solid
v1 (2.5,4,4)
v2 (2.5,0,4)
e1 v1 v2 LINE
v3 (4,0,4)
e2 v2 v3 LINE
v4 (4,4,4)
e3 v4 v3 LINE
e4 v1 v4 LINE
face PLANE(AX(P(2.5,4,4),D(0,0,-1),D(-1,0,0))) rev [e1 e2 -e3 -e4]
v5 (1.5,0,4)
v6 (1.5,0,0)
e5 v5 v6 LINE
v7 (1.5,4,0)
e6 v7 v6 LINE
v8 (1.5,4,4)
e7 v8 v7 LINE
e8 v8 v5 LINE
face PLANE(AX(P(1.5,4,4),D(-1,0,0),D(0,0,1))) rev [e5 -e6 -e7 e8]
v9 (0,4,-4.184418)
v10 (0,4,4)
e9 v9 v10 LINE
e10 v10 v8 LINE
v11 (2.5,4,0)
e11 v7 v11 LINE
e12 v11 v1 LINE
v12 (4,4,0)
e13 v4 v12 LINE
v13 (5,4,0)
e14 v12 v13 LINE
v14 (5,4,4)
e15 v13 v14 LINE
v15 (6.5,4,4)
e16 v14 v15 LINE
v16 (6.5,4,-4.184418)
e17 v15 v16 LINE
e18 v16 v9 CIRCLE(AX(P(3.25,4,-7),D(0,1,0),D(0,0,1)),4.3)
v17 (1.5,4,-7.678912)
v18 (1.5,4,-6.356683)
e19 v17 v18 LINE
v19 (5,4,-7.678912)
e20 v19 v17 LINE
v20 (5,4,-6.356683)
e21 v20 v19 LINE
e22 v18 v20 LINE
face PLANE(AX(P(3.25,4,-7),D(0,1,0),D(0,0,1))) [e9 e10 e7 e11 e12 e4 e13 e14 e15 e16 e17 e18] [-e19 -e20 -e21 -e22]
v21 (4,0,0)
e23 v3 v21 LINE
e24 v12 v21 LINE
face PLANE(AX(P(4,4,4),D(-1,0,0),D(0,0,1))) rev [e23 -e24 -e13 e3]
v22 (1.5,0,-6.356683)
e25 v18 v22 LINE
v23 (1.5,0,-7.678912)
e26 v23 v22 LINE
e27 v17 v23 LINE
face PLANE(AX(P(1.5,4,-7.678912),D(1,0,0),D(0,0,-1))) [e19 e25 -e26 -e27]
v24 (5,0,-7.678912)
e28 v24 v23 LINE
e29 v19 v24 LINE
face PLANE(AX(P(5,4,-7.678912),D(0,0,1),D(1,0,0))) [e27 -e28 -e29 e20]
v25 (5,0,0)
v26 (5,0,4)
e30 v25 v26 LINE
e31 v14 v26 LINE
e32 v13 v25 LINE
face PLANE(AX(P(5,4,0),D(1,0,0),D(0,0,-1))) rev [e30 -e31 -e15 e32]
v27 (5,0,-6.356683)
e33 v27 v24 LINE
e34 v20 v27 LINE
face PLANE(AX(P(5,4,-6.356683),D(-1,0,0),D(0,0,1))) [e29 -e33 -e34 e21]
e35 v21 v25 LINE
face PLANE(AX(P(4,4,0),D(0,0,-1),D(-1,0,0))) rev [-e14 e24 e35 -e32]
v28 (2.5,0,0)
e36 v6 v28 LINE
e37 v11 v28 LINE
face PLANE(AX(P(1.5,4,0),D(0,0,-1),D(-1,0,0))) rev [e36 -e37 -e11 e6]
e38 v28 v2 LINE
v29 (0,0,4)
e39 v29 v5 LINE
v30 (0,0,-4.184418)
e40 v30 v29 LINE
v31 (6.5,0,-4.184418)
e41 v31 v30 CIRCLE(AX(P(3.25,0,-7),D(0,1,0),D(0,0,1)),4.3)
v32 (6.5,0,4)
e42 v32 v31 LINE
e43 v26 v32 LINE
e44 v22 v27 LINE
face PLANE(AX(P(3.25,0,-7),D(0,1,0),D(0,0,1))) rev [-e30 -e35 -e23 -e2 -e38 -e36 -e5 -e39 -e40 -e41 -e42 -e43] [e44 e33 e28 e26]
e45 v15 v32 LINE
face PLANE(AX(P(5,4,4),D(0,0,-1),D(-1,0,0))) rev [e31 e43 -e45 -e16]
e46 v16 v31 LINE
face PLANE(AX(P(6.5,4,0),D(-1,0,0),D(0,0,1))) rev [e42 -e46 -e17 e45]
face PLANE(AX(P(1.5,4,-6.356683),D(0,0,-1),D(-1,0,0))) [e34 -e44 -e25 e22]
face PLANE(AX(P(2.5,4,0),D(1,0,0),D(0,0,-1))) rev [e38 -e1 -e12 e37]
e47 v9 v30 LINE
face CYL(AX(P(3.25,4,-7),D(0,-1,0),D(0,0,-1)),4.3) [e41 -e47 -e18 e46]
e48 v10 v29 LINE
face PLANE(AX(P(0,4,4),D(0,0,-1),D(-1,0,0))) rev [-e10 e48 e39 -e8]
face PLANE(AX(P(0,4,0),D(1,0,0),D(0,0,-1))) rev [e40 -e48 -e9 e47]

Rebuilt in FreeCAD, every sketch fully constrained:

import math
import FreeCAD as App
import Part
import Sketcher

V = App.Vector
Q = App.Units.Quantity

doc = App.newDocument("Part")
body = doc.addObject("PartDesign::Body", "Body")

# Sketch on XZ plane
sketch1 = body.newObject("Sketcher::SketchObject", "Sketch")
sketch1.AttachmentSupport = (doc.getObject("XZ_Plane"), [""])
sketch1.MapMode = "FlatFace"
sketch1.addGeometry(Part.LineSegment(V(0, 4, 0), V(1.5, 4, 0)), False)
sketch1.addGeometry(Part.LineSegment(V(1.5, 4, 0), V(1.5, 0, 0)), False)
sketch1.addGeometry(Part.LineSegment(V(1.5, 0, 0), V(2.5, 0, 0)), False)
sketch1.addGeometry(Part.LineSegment(V(2.5, 0, 0), V(2.5, 4, 0)), False)
sketch1.addGeometry(Part.LineSegment(V(2.5, 4, 0), V(4, 4, 0)), False)
sketch1.addGeometry(Part.LineSegment(V(4, 4, 0), V(4, 0, 0)), False)
sketch1.addGeometry(Part.LineSegment(V(4, 0, 0), V(5, 0, 0)), False)
sketch1.addGeometry(Part.LineSegment(V(5, 0, 0), V(5, 4, 0)), False)
sketch1.addGeometry(Part.LineSegment(V(5, 4, 0), V(6.5, 4, 0)), False)
sketch1.addGeometry(Part.LineSegment(V(6.5, 4, 0), V(6.5, -4.184418, 0)), False)
sketch1.addGeometry(Part.ArcOfCircle(Part.Circle(V(3.25, -7, 0), V(0, 0, 1), 4.3), math.radians(139.096542), math.radians(400.903458)), False)
sketch1.addGeometry(Part.LineSegment(V(0, -4.184418, 0), V(0, 4, 0)), False)
sketch1.addGeometry(Part.LineSegment(V(5, -6.356683, 0), V(1.5, -6.356683, 0)), False)
sketch1.addGeometry(Part.LineSegment(V(1.5, -6.356683, 0), V(1.5, -7.678912, 0)), False)
sketch1.addGeometry(Part.LineSegment(V(1.5, -7.678912, 0), V(5, -7.678912, 0)), False)
sketch1.addGeometry(Part.LineSegment(V(5, -7.678912, 0), V(5, -6.356683, 0)), False)
sketch1.addConstraint(Sketcher.Constraint("Coincident", 0, 2, 1, 1))
sketch1.addConstraint(Sketcher.Constraint("Coincident", 1, 2, 2, 1))
sketch1.addConstraint(Sketcher.Constraint("Coincident", 2, 2, 3, 1))
sketch1.addConstraint(Sketcher.Constraint("Coincident", 3, 2, 4, 1))
sketch1.addConstraint(Sketcher.Constraint("Coincident", 4, 2, 5, 1))
sketch1.addConstraint(Sketcher.Constraint("Coincident", 5, 2, 6, 1))
sketch1.addConstraint(Sketcher.Constraint("Coincident", 6, 2, 7, 1))
sketch1.addConstraint(Sketcher.Constraint("Coincident", 7, 2, 8, 1))
sketch1.addConstraint(Sketcher.Constraint("Coincident", 8, 2, 9, 1))
sketch1.addConstraint(Sketcher.Constraint("Coincident", 9, 2, 10, 2))
sketch1.addConstraint(Sketcher.Constraint("Coincident", 10, 1, 11, 1))
sketch1.addConstraint(Sketcher.Constraint("Coincident", 11, 2, 0, 1))
sketch1.addConstraint(Sketcher.Constraint("Coincident", 12, 2, 13, 1))
sketch1.addConstraint(Sketcher.Constraint("Coincident", 13, 2, 14, 1))
sketch1.addConstraint(Sketcher.Constraint("Coincident", 14, 2, 15, 1))
sketch1.addConstraint(Sketcher.Constraint("Coincident", 15, 2, 12, 1))
sketch1.addConstraint(Sketcher.Constraint("Horizontal", 0))
sketch1.addConstraint(Sketcher.Constraint("Vertical", 1))
sketch1.addConstraint(Sketcher.Constraint("Horizontal", 2))
sketch1.addConstraint(Sketcher.Constraint("Vertical", 3))
sketch1.addConstraint(Sketcher.Constraint("Horizontal", 4))
sketch1.addConstraint(Sketcher.Constraint("Vertical", 5))
sketch1.addConstraint(Sketcher.Constraint("Horizontal", 6))
sketch1.addConstraint(Sketcher.Constraint("Vertical", 7))
sketch1.addConstraint(Sketcher.Constraint("Horizontal", 8))
sketch1.addConstraint(Sketcher.Constraint("Vertical", 9))
sketch1.addConstraint(Sketcher.Constraint("Vertical", 11))
sketch1.addConstraint(Sketcher.Constraint("Horizontal", 12))
sketch1.addConstraint(Sketcher.Constraint("Vertical", 13))
sketch1.addConstraint(Sketcher.Constraint("Horizontal", 14))
sketch1.addConstraint(Sketcher.Constraint("Vertical", 15))
sketch1.addConstraint(Sketcher.Constraint("PointOnObject", 1, 2, -1))
sketch1.addConstraint(Sketcher.Constraint("PointOnObject", 5, 2, -1))
sketch1.addConstraint(Sketcher.Constraint("PointOnObject", 10, 1, -2))
sketch1.addConstraint(Sketcher.Constraint("Horizontal", 0, 2, 3, 2))
sketch1.addConstraint(Sketcher.Constraint("Horizontal", 4, 2, 7, 2))
sketch1.addConstraint(Sketcher.Constraint("Horizontal", 9, 2, 10, 1))
sketch1.addConstraint(Sketcher.Constraint("Vertical", 1, 2, 12, 2))
sketch1.addConstraint(Sketcher.Constraint("Vertical", 7, 2, 14, 2))
sketch1.addConstraint(Sketcher.Constraint("Equal", 0, 4))
sketch1.addConstraint(Sketcher.Constraint("Equal", 2, 6))
sketch1.addConstraint(Sketcher.Constraint("Equal", 4, 8))
sketch1.addConstraint(Sketcher.Constraint("Radius", 10, Q("4.3 mm")))
sketch1.addConstraint(Sketcher.Constraint("DistanceX", 2, 1, 2, 2, Q("1 mm")))
sketch1.addConstraint(Sketcher.Constraint("DistanceY", 1, 2, 1, 1, Q("4 mm")))
sketch1.addConstraint(Sketcher.Constraint("DistanceX", 0, 1, 0, 2, Q("1.5 mm")))
sketch1.addConstraint(Sketcher.Constraint("DistanceY", 10, 3, -1, 1, Q("7 mm")))
sketch1.addConstraint(Sketcher.Constraint("DistanceY", 13, 2, 13, 1, Q("1.322229 mm")))
sketch1.addConstraint(Sketcher.Constraint("DistanceY", 13, 2, -1, 1, Q("7.678912 mm")))
pad1 = body.newObject("PartDesign::Pad", "Pad")
pad1.Profile = sketch1
pad1.Length = 4
pad1.Reversed = True

doc.recompute()
